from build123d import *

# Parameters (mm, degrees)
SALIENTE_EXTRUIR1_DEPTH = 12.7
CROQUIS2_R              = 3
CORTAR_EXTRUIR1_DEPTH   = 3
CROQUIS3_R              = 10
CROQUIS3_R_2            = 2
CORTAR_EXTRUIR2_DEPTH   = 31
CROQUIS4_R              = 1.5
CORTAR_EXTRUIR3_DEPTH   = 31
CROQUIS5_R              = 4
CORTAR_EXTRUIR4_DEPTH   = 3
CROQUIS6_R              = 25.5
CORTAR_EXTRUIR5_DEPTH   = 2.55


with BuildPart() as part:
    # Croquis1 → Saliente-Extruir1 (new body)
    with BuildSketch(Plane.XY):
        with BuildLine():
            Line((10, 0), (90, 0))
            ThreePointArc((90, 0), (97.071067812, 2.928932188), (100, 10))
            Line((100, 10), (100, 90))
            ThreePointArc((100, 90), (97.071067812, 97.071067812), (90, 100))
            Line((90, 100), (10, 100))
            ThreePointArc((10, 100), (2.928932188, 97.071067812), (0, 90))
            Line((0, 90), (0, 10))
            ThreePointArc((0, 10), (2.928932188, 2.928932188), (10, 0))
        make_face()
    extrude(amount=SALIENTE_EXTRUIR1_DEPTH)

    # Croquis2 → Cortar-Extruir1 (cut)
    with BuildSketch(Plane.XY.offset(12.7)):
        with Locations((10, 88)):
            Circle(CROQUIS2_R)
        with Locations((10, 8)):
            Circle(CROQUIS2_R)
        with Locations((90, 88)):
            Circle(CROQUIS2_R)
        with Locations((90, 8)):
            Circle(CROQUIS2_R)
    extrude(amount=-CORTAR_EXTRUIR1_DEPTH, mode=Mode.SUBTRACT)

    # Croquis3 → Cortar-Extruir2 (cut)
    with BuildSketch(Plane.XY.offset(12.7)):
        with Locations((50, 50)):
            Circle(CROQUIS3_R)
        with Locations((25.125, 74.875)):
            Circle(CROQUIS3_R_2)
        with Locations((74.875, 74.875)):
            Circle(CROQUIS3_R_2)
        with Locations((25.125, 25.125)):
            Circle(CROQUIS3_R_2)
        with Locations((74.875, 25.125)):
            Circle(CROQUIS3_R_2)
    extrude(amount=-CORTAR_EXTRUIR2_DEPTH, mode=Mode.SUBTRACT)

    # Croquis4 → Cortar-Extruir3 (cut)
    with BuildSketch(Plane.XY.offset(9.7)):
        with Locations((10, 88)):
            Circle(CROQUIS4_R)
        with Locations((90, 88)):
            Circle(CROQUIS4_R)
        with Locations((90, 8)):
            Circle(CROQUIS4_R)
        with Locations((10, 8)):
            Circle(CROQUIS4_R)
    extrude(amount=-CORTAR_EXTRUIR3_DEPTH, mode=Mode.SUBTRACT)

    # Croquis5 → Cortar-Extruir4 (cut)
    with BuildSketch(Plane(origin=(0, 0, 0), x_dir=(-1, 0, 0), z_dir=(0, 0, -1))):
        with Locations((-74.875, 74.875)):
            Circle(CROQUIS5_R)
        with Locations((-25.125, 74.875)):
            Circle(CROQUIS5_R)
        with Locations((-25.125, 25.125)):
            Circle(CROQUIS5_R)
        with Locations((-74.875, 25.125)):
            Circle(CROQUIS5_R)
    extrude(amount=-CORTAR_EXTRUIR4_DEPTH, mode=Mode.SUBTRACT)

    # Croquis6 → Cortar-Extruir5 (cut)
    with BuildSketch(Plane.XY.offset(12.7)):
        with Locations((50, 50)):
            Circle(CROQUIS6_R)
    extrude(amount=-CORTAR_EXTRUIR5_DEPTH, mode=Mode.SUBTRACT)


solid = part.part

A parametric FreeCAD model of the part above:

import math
import FreeCAD as App
import Part
import Sketcher

V = App.Vector
Q = App.Units.Quantity

doc = App.newDocument("Part")
body = doc.addObject("PartDesign::Body", "Body")

# Sketch on XY plane
sketch1 = doc.addObject("Sketcher::SketchObject", "Sketch")
body.addObject(sketch1)
sketch1.AttachmentSupport = (doc.XY_Plane, [""])
sketch1.MapMode = "FlatFace"
sketch1.addGeometry([
    Part.LineSegment(V(10, 0, 0), V(90, 0, 0)),  # 0
    Part.ArcOfCircle(Part.Circle(V(90, 10, 0), V(0, 0, 1), 10), math.radians(-90), math.radians(0)),  # 1
    Part.LineSegment(V(100, 10, 0), V(100, 90, 0)),  # 2
    Part.ArcOfCircle(Part.Circle(V(90, 90, 0), V(0, 0, 1), 10), math.radians(0), math.radians(90)),  # 3
    Part.LineSegment(V(90, 100, 0), V(10, 100, 0)),  # 4
    Part.ArcOfCircle(Part.Circle(V(10, 90, 0), V(0, 0, 1), 10), math.radians(90), math.radians(180)),  # 5
    Part.LineSegment(V(0, 90, 0), V(0, 10, 0)),  # 6
    Part.ArcOfCircle(Part.Circle(V(10, 10, 0), V(0, 0, 1), 10), math.radians(180), math.radians(270)),  # 7
], False)
sketch1.addConstraint([
    Sketcher.Constraint("Tangent", 0, 2, 1, 1),
    Sketcher.Constraint("Tangent", 1, 2, 2, 1),
    Sketcher.Constraint("Tangent", 2, 2, 3, 1),
    Sketcher.Constraint("Tangent", 3, 2, 4, 1),
    Sketcher.Constraint("Tangent", 4, 2, 5, 1),
    Sketcher.Constraint("Tangent", 5, 2, 6, 1),
    Sketcher.Constraint("Tangent", 6, 2, 7, 1),
    Sketcher.Constraint("Tangent", 7, 2, 0, 1),
    Sketcher.Constraint("Horizontal", 0),
    Sketcher.Constraint("Vertical", 2),
    Sketcher.Constraint("Horizontal", 4),
    Sketcher.Constraint("Vertical", 6),
    Sketcher.Constraint("Equal", 1, 3),
    Sketcher.Constraint("Equal", 3, 5),
    Sketcher.Constraint("Equal", 5, 7),
    Sketcher.Constraint("PointOnObject", 0, 2, -1),
    Sketcher.Constraint("PointOnObject", 5, 2, -2),
    Sketcher.Constraint("Equal", 4, 2),
    Sketcher.Constraint("Radius", 1, Q("10 mm")),
    Sketcher.Constraint("DistanceX", 0, 1, 0, 2, Q("80 mm")),
])
pad1 = doc.addObject("PartDesign::Pad", "Pad")
body.addObject(pad1)
pad1.Profile = sketch1
pad1.Length = 12.7

# Sketch on XY plane
sketch2 = doc.addObject("Sketcher::SketchObject", "Sketch001")
body.addObject(sketch2)
sketch2.AttachmentSupport = (doc.XY_Plane, [""])
sketch2.MapMode = "FlatFace"
sketch2.AttachmentOffset = App.Placement(V(0, 0, 12.7), App.Rotation())
sketch2.addGeometry([
    Part.Circle(V(10, 88, 0), V(0, 0, 1), 3),
    Part.Circle(V(10, 8, 0), V(0, 0, 1), 3),
    Part.Circle(V(90, 88, 0), V(0, 0, 1), 3),
    Part.Circle(V(90, 8, 0), V(0, 0, 1), 3),
], False)
sketch2.addConstraint([
    Sketcher.Constraint("Equal", 0, 1),
    Sketcher.Constraint("Equal", 1, 2),
    Sketcher.Constraint("Equal", 2, 3),
    Sketcher.Constraint("Horizontal", 0, 3, 2, 3),
    Sketcher.Constraint("Horizontal", 1, 3, 3, 3),
    Sketcher.Constraint("Vertical", 0, 3, 1, 3),
    Sketcher.Constraint("Vertical", 2, 3, 3, 3),
    Sketcher.Constraint("Diameter", 0, Q("6 mm")),
    Sketcher.Constraint("DistanceX", -1, 1, 0, 3, Q("10 mm")),
    Sketcher.Constraint("DistanceY", -1, 1, 0, 3, Q("88 mm")),
    Sketcher.Constraint("DistanceY", -1, 1, 1, 3, Q("8 mm")),
    Sketcher.Constraint("DistanceX", -1, 1, 2, 3, Q("90 mm")),
])
pocket1 = doc.addObject("PartDesign::Pocket", "Pocket")
body.addObject(pocket1)
pocket1.Profile = sketch2
pocket1.Length = 3

# Sketch on XY plane
sketch3 = doc.addObject("Sketcher::SketchObject", "Sketch002")
body.addObject(sketch3)
sketch3.AttachmentSupport = (doc.XY_Plane, [""])
sketch3.MapMode = "FlatFace"
sketch3.AttachmentOffset = App.Placement(V(0, 0, 12.7), App.Rotation())
sketch3.addGeometry([
    Part.Circle(V(50, 50, 0), V(0, 0, 1), 10),  # 0
    Part.Circle(V(25.125, 74.875, 0), V(0, 0, 1), 2),  # 1
    Part.Circle(V(74.875, 74.875, 0), V(0, 0, 1), 2),  # 2
    Part.Circle(V(25.125, 25.125, 0), V(0, 0, 1), 2),  # 3
    Part.Circle(V(74.875, 25.125, 0), V(0, 0, 1), 2),  # 4
], False)
sketch3.addConstraint([
    Sketcher.Constraint("Equal", 1, 2),
    Sketcher.Constraint("Equal", 2, 3),
    Sketcher.Constraint("Equal", 3, 4),
    Sketcher.Constraint("Horizontal", 1, 3, 2, 3),
    Sketcher.Constraint("Horizontal", 3, 3, 4, 3),
    Sketcher.Constraint("Vertical", 1, 3, 3, 3),
    Sketcher.Constraint("Vertical", 2, 3, 4, 3),
    Sketcher.Constraint("Diameter", 0, Q("20 mm")),
    Sketcher.Constraint("Diameter", 1, Q("4 mm")),
    Sketcher.Constraint("DistanceX", -1, 1, 0, 3, Q("50 mm")),
    Sketcher.Constraint("DistanceY", -1, 1, 0, 3, Q("50 mm")),
    Sketcher.Constraint("DistanceX", 1, 3, 2, 3, Q("49.75 mm")),
    Sketcher.Constraint("DistanceY", 3, 3, 1, 3, Q("49.75 mm")),
    Sketcher.Constraint("DistanceX", -1, 1, 1, 3, Q("25.125 mm")),
    Sketcher.Constraint("DistanceY", -1, 1, 1, 3, Q("74.875 mm")),
])
pocket2 = doc.addObject("PartDesign::Pocket", "Pocket001")
body.addObject(pocket2)
pocket2.Profile = sketch3
pocket2.Length = 31

# Sketch on XY plane
sketch4 = doc.addObject("Sketcher::SketchObject", "Sketch003")
body.addObject(sketch4)
sketch4.AttachmentSupport = (doc.XY_Plane, [""])
sketch4.MapMode = "FlatFace"
sketch4.AttachmentOffset = App.Placement(V(0, 0, 9.7), App.Rotation())
sketch4.addGeometry([
    Part.Circle(V(10, 88, 0), V(0, 0, 1), 1.5),
    Part.Circle(V(90, 88, 0), V(0, 0, 1), 1.5),
    Part.Circle(V(90, 8, 0), V(0, 0, 1), 1.5),
    Part.Circle(V(10, 8, 0), V(0, 0, 1), 1.5),
], False)
sketch4.addConstraint([
    Sketcher.Constraint("Equal", 0, 1),
    Sketcher.Constraint("Equal", 1, 2),
    Sketcher.Constraint("Equal", 2, 3),
    Sketcher.Constraint("Horizontal", 0, 3, 1, 3),
    Sketcher.Constraint("Horizontal", 2, 3, 3, 3),
    Sketcher.Constraint("Vertical", 1, 3, 2, 3),
    Sketcher.Constraint("Vertical", 0, 3, 3, 3),
    Sketcher.Constraint("Diameter", 0, Q("3 mm")),
    Sketcher.Constraint("DistanceX", -1, 1, 0, 3, Q("10 mm")),
    Sketcher.Constraint("DistanceY", -1, 1, 0, 3, Q("88 mm")),
    Sketcher.Constraint("DistanceX", -1, 1, 1, 3, Q("90 mm")),
    Sketcher.Constraint("DistanceY", -1, 1, 2, 3, Q("8 mm")),
])
pocket3 = doc.addObject("PartDesign::Pocket", "Pocket002")
body.addObject(pocket3)
pocket3.Profile = sketch4
pocket3.Length = 31

# Sketch on XY plane
sketch5 = doc.addObject("Sketcher::SketchObject", "Sketch004")
body.addObject(sketch5)
sketch5.AttachmentSupport = (doc.XY_Plane, [""])
sketch5.MapMode = "FlatFace"
sketch5.addGeometry([
    Part.Circle(V(74.875, 74.875, 0), V(0, 0, 1), 4),
    Part.Circle(V(25.125, 74.875, 0), V(0, 0, 1), 4),
    Part.Circle(V(25.125, 25.125, 0), V(0, 0, 1), 4),
    Part.Circle(V(74.875, 25.125, 0), V(0, 0, 1), 4),
], False)
sketch5.addConstraint([
    Sketcher.Constraint("Equal", 0, 1),
    Sketcher.Constraint("Equal", 1, 2),
    Sketcher.Constraint("Equal", 2, 3),
    Sketcher.Constraint("Horizontal", 0, 3, 1, 3),
    Sketcher.Constraint("Horizontal", 2, 3, 3, 3),
    Sketcher.Constraint("Vertical", 1, 3, 2, 3),
    Sketcher.Constraint("Vertical", 0, 3, 3, 3),
    Sketcher.Constraint("Diameter", 0, Q("8 mm")),
    Sketcher.Constraint("DistanceX", 1, 3, 0, 3, Q("49.75 mm")),
    Sketcher.Constraint("DistanceY", 2, 3, 1, 3, Q("49.75 mm")),
    Sketcher.Constraint("DistanceX", -1, 1, 0, 3, Q("74.875 mm")),
    Sketcher.Constraint("DistanceY", -1, 1, 0, 3, Q("74.875 mm")),
])
pocket4 = doc.addObject("PartDesign::Pocket", "Pocket003")
body.addObject(pocket4)
pocket4.Profile = sketch5
pocket4.Length = 3
pocket4.Reversed = True

# Sketch on XY plane
sketch6 = doc.addObject("Sketcher::SketchObject", "Sketch005")
body.addObject(sketch6)
sketch6.AttachmentSupport = (doc.XY_Plane, [""])
sketch6.MapMode = "FlatFace"
sketch6.AttachmentOffset = App.Placement(V(0, 0, 12.7), App.Rotation())
sketch6.addGeometry(Part.Circle(V(50, 50, 0), V(0, 0, 1), 25.5), False)
sketch6.addConstraint([
    Sketcher.Constraint("Diameter", 0, Q("51 mm")),
    Sketcher.Constraint("DistanceX", -1, 1, 0, 3, Q("50 mm")),
    Sketcher.Constraint("DistanceY", -1, 1, 0, 3, Q("50 mm")),
])
pocket5 = doc.addObject("PartDesign::Pocket", "Pocket004")
body.addObject(pocket5)
pocket5.Profile = sketch6
pocket5.Length = 2.55

doc.recompute()
